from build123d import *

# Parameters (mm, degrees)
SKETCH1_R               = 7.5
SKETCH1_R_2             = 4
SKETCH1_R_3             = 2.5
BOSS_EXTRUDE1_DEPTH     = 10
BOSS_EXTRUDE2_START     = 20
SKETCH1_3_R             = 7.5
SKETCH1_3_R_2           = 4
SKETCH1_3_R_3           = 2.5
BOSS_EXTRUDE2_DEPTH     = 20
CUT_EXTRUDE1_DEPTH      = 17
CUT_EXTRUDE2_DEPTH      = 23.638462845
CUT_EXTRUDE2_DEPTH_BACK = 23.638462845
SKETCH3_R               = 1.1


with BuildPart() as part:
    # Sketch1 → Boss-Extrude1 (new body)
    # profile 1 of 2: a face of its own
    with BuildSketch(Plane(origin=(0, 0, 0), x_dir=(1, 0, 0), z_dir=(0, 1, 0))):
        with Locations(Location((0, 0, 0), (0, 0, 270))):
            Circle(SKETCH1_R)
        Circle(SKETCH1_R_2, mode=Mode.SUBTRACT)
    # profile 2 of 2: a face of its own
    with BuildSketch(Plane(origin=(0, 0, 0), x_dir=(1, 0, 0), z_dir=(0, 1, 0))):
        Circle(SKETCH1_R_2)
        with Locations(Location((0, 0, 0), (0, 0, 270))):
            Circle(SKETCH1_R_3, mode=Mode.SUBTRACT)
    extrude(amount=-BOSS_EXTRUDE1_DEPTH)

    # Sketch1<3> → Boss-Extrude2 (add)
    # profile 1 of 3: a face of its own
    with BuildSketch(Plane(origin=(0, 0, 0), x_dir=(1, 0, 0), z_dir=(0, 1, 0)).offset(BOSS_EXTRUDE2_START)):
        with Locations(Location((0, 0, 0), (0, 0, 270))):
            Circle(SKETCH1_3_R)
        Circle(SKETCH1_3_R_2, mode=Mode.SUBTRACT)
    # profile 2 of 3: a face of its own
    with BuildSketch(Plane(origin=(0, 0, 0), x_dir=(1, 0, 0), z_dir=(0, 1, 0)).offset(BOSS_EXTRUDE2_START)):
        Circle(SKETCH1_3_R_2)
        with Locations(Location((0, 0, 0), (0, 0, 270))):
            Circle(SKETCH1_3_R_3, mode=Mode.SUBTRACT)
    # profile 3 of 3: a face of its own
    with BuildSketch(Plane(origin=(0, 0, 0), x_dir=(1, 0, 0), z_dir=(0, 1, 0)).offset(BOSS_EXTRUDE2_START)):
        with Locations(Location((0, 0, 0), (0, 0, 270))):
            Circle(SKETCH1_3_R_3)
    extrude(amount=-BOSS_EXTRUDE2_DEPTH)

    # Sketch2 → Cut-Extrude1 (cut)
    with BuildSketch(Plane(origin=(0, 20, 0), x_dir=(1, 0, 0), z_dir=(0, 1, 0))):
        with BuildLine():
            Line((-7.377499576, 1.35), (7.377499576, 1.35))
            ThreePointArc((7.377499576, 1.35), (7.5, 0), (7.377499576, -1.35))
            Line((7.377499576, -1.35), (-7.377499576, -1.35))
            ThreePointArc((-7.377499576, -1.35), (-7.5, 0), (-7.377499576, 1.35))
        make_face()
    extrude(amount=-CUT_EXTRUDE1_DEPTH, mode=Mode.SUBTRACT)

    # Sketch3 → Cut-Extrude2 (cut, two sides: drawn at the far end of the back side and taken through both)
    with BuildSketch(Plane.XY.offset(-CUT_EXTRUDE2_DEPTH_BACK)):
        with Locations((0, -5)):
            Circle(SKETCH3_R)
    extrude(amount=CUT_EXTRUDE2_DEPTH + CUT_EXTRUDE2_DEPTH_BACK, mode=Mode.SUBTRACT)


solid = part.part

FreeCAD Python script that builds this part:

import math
import FreeCAD as App
import Part
import Sketcher
from FreeCAD import Vector

doc = App.newDocument("Part")
params = doc.addObject("Spreadsheet::Sheet", "Params")
for row, (alias, value) in enumerate([
    ("sketch1_diameter", "15 mm"),
    ("sketch1_diameter2", "5 mm"),
    ("pad1_length", "10 mm"),
    ("sketch2_diameter", "15 mm"),
    ("pad2_length", "20 mm"),
    ("sketch3_radius", "7.5 mm"),
    ("pocket1_length", "17 mm"),
    ("sketch4_diameter", "2.2 mm"),
], start=1):
    params.set(f"A{row}", alias)
    params.set(f"B{row}", "=" + value)
    params.setAlias(f"B{row}", alias)

body = doc.addObject("PartDesign::Body", "Body")

# Sketch on XZ plane
sketch1 = body.newObject("Sketcher::SketchObject", "Sketch")
sketch1.AttachmentSupport = (doc.getObject("XZ_Plane"), [""])
sketch1.MapMode = "FlatFace"
sketch1.addGeometry(Part.Circle(Vector(0, 0, 0), Vector(0, 0, 1), 7.5), False)
sketch1.addGeometry(Part.Circle(Vector(0, 0, 0), Vector(0, 0, 1), 2.5), False)
sketch1.addConstraint(Sketcher.Constraint("Coincident", 0, 3, -1, 1))
sketch1.addConstraint(Sketcher.Constraint("Coincident", 1, 3, -1, 1))
sketch1.addConstraint(Sketcher.Constraint("Diameter", 0, 15.0))
sketch1.addConstraint(Sketcher.Constraint("Diameter", 1, 5.0))
sketch1.setExpression("Constraints[2]", "Params.sketch1_diameter")
sketch1.setExpression("Constraints[3]", "Params.sketch1_diameter2")
pad1 = body.newObject("PartDesign::Pad", "Pad")
pad1.Profile = sketch1
pad1.setExpression("Length", "Params.pad1_length")

# Sketch on XZ plane
sketch2 = body.newObject("Sketcher::SketchObject", "Sketch001")
sketch2.AttachmentSupport = (doc.getObject("XZ_Plane"), [""])
sketch2.MapMode = "FlatFace"
sketch2.AttachmentOffset = App.Placement(Vector(0, 0, -20), App.Rotation())
sketch2.addGeometry(Part.Circle(Vector(0, 0, 0), Vector(0, 0, 1), 8), False)
sketch2.addConstraint(Sketcher.Constraint("Coincident", 0, 3, -1, 1))
sketch2.addConstraint(Sketcher.Constraint("Diameter", 0, 15.0))
sketch2.setExpression("Constraints[1]", "Params.sketch2_diameter")
pad2 = body.newObject("PartDesign::Pad", "Pad001")
pad2.Profile = sketch2
pad2.setExpression("Length", "Params.pad2_length")

# Sketch on XZ plane
sketch3 = body.newObject("Sketcher::SketchObject", "Sketch002")
sketch3.AttachmentSupport = (doc.getObject("XZ_Plane"), [""])
sketch3.MapMode = "FlatFace"
sketch3.AttachmentOffset = App.Placement(Vector(0, 0, -20), App.Rotation())
sketch3.addGeometry(Part.LineSegment(Vector(7.4, -1.4, 0), Vector(-7.4, -1.4, 0)), False)
sketch3.addGeometry(Part.ArcOfCircle(Part.Circle(Vector(0, 0, 0), Vector(0, 0, 1), 7.5), math.radians(170), math.radians(190)), False)
sketch3.addGeometry(Part.LineSegment(Vector(-7.4, 1.4, 0), Vector(7.4, 1.4, 0)), False)
sketch3.addGeometry(Part.ArcOfCircle(Part.Circle(Vector(0, 0, 0), Vector(0, 0, 1), 7.5), math.radians(-10), math.radians(10)), False)
sketch3.addConstraint(Sketcher.Constraint("Coincident", 0, 2, 1, 2))
sketch3.addConstraint(Sketcher.Constraint("Coincident", 1, 1, 2, 1))
sketch3.addConstraint(Sketcher.Constraint("Coincident", 2, 2, 3, 2))
sketch3.addConstraint(Sketcher.Constraint("Coincident", 3, 1, 0, 1))
sketch3.addConstraint(Sketcher.Constraint("Horizontal", 0))
sketch3.addConstraint(Sketcher.Constraint("Horizontal", 2))
sketch3.addConstraint(Sketcher.Constraint("Coincident", 1, 3, -1, 1))
sketch3.addConstraint(Sketcher.Constraint("Coincident", 3, 3, -1, 1))
sketch3.addConstraint(Sketcher.Constraint("Equal", 1, 3))
sketch3.addConstraint(Sketcher.Constraint("Vertical", 0, 2, 1, 1))
sketch3.addConstraint(Sketcher.Constraint("Radius", 1, 7.5))
sketch3.addConstraint(Sketcher.Constraint("DistanceY", 0, 2, 1, 1, 2.7))
sketch3.setExpression("Constraints[10]", "Params.sketch3_radius")
pocket1 = body.newObject("PartDesign::Pocket", "Pocket")
pocket1.Profile = sketch3
pocket1.setExpression("Length", "Params.pocket1_length")
pocket1.Reversed = True

# Sketch on XY plane
sketch4 = body.newObject("Sketcher::SketchObject", "Sketch003")
sketch4.AttachmentSupport = (doc.getObject("XY_Plane"), [""])
sketch4.MapMode = "FlatFace"
sketch4.addGeometry(Part.Circle(Vector(0, -5, 0), Vector(0, 0, 1), 1.1), False)
sketch4.addConstraint(Sketcher.Constraint("PointOnObject", 0, 3, -2))
sketch4.addConstraint(Sketcher.Constraint("Diameter", 0, 2.2))
sketch4.addConstraint(Sketcher.Constraint("DistanceY", 0, 3, -1, 1, 5.0))
sketch4.setExpression("Constraints[1]", "Params.sketch4_diameter")
pocket2 = body.newObject("PartDesign::Pocket", "Pocket001")
pocket2.Profile = sketch4
pocket2.Type = "ThroughAll"
pocket2.Midplane = True

doc.recompute()
